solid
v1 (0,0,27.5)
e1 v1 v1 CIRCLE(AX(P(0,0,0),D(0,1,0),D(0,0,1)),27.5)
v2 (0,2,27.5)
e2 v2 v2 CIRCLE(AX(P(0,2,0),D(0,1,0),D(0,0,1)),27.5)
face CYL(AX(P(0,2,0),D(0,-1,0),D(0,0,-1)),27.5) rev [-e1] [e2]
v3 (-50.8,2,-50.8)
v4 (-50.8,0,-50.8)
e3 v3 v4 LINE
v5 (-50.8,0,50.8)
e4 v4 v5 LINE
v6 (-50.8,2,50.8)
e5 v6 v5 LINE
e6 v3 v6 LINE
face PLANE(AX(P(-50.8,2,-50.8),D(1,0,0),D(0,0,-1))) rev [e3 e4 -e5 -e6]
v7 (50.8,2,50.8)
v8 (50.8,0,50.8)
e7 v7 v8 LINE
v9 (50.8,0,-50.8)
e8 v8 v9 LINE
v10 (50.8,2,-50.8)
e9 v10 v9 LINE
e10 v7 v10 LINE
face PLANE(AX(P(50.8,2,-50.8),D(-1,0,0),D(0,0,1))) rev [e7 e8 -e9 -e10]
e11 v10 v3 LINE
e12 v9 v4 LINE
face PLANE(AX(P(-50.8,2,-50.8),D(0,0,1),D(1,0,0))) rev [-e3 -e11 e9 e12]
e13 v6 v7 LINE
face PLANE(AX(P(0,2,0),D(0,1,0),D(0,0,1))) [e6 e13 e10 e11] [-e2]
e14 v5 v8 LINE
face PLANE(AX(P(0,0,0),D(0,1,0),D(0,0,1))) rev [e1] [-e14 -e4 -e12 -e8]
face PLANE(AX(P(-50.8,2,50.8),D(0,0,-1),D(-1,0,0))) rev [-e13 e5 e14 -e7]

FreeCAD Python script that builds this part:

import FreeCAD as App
import Part
import Sketcher

doc = App.newDocument("Part")
params = doc.addObject("Spreadsheet::Sheet", "Params")
for row, (alias, value) in enumerate([
    ("sketch1_diameter", "55 mm"),
    ("sketch1_width", "101.6 mm"),
    ("pad1_length", "2 mm"),
], start=1):
    params.set(f"A{row}", alias)
    params.set(f"B{row}", "=" + value)
    params.setAlias(f"B{row}", alias)

body = doc.addObject("PartDesign::Body", "Body")

# Sketch on XZ plane
sketch1 = body.newObject("Sketcher::SketchObject", "Sketch")
sketch1.AttachmentSupport = (doc.getObject("XZ_Plane"), [""])
sketch1.MapMode = "FlatFace"
sketch1.addGeometry([
    Part.LineSegment(App.Vector(-51, -51, 0), App.Vector(-51, 51, 0)),  # 0
    Part.LineSegment(App.Vector(-51, 51, 0), App.Vector(51, 51, 0)),  # 1
    Part.LineSegment(App.Vector(51, 51, 0), App.Vector(51, -51, 0)),  # 2
    Part.LineSegment(App.Vector(51, -51, 0), App.Vector(-51, -51, 0)),  # 3
    Part.Circle(App.Vector(0, 0, 0), App.Vector(0, 0, 1), 28),  # 4
], False)
sketch1.addConstraint([
    Sketcher.Constraint("Coincident", 0, 2, 1, 1),
    Sketcher.Constraint("Coincident", 1, 2, 2, 1),
    Sketcher.Constraint("Coincident", 2, 2, 3, 1),
    Sketcher.Constraint("Coincident", 3, 2, 0, 1),
    Sketcher.Constraint("Vertical", 0),
    Sketcher.Constraint("Horizontal", 1),
    Sketcher.Constraint("Vertical", 2),
    Sketcher.Constraint("Horizontal", 3),
    Sketcher.Constraint("Coincident", 4, 3, -1, 1),
    Sketcher.Constraint("Symmetric", 0, 2, 2, 2, -1, 1),
    Sketcher.Constraint("Equal", 3, 0),
    Sketcher.Constraint("Diameter", 4, 55.0),
    Sketcher.Constraint("DistanceX", 1, 1, 1, 2, 101.6),
])
sketch1.setExpression("Constraints[11]", "Params.sketch1_diameter")
sketch1.setExpression("Constraints[12]", "Params.sketch1_width")
pad1 = body.newObject("PartDesign::Pad", "Pad")
pad1.Profile = sketch1
pad1.setExpression("Length", "Params.pad1_length")
pad1.Reversed = True

doc.recompute()
